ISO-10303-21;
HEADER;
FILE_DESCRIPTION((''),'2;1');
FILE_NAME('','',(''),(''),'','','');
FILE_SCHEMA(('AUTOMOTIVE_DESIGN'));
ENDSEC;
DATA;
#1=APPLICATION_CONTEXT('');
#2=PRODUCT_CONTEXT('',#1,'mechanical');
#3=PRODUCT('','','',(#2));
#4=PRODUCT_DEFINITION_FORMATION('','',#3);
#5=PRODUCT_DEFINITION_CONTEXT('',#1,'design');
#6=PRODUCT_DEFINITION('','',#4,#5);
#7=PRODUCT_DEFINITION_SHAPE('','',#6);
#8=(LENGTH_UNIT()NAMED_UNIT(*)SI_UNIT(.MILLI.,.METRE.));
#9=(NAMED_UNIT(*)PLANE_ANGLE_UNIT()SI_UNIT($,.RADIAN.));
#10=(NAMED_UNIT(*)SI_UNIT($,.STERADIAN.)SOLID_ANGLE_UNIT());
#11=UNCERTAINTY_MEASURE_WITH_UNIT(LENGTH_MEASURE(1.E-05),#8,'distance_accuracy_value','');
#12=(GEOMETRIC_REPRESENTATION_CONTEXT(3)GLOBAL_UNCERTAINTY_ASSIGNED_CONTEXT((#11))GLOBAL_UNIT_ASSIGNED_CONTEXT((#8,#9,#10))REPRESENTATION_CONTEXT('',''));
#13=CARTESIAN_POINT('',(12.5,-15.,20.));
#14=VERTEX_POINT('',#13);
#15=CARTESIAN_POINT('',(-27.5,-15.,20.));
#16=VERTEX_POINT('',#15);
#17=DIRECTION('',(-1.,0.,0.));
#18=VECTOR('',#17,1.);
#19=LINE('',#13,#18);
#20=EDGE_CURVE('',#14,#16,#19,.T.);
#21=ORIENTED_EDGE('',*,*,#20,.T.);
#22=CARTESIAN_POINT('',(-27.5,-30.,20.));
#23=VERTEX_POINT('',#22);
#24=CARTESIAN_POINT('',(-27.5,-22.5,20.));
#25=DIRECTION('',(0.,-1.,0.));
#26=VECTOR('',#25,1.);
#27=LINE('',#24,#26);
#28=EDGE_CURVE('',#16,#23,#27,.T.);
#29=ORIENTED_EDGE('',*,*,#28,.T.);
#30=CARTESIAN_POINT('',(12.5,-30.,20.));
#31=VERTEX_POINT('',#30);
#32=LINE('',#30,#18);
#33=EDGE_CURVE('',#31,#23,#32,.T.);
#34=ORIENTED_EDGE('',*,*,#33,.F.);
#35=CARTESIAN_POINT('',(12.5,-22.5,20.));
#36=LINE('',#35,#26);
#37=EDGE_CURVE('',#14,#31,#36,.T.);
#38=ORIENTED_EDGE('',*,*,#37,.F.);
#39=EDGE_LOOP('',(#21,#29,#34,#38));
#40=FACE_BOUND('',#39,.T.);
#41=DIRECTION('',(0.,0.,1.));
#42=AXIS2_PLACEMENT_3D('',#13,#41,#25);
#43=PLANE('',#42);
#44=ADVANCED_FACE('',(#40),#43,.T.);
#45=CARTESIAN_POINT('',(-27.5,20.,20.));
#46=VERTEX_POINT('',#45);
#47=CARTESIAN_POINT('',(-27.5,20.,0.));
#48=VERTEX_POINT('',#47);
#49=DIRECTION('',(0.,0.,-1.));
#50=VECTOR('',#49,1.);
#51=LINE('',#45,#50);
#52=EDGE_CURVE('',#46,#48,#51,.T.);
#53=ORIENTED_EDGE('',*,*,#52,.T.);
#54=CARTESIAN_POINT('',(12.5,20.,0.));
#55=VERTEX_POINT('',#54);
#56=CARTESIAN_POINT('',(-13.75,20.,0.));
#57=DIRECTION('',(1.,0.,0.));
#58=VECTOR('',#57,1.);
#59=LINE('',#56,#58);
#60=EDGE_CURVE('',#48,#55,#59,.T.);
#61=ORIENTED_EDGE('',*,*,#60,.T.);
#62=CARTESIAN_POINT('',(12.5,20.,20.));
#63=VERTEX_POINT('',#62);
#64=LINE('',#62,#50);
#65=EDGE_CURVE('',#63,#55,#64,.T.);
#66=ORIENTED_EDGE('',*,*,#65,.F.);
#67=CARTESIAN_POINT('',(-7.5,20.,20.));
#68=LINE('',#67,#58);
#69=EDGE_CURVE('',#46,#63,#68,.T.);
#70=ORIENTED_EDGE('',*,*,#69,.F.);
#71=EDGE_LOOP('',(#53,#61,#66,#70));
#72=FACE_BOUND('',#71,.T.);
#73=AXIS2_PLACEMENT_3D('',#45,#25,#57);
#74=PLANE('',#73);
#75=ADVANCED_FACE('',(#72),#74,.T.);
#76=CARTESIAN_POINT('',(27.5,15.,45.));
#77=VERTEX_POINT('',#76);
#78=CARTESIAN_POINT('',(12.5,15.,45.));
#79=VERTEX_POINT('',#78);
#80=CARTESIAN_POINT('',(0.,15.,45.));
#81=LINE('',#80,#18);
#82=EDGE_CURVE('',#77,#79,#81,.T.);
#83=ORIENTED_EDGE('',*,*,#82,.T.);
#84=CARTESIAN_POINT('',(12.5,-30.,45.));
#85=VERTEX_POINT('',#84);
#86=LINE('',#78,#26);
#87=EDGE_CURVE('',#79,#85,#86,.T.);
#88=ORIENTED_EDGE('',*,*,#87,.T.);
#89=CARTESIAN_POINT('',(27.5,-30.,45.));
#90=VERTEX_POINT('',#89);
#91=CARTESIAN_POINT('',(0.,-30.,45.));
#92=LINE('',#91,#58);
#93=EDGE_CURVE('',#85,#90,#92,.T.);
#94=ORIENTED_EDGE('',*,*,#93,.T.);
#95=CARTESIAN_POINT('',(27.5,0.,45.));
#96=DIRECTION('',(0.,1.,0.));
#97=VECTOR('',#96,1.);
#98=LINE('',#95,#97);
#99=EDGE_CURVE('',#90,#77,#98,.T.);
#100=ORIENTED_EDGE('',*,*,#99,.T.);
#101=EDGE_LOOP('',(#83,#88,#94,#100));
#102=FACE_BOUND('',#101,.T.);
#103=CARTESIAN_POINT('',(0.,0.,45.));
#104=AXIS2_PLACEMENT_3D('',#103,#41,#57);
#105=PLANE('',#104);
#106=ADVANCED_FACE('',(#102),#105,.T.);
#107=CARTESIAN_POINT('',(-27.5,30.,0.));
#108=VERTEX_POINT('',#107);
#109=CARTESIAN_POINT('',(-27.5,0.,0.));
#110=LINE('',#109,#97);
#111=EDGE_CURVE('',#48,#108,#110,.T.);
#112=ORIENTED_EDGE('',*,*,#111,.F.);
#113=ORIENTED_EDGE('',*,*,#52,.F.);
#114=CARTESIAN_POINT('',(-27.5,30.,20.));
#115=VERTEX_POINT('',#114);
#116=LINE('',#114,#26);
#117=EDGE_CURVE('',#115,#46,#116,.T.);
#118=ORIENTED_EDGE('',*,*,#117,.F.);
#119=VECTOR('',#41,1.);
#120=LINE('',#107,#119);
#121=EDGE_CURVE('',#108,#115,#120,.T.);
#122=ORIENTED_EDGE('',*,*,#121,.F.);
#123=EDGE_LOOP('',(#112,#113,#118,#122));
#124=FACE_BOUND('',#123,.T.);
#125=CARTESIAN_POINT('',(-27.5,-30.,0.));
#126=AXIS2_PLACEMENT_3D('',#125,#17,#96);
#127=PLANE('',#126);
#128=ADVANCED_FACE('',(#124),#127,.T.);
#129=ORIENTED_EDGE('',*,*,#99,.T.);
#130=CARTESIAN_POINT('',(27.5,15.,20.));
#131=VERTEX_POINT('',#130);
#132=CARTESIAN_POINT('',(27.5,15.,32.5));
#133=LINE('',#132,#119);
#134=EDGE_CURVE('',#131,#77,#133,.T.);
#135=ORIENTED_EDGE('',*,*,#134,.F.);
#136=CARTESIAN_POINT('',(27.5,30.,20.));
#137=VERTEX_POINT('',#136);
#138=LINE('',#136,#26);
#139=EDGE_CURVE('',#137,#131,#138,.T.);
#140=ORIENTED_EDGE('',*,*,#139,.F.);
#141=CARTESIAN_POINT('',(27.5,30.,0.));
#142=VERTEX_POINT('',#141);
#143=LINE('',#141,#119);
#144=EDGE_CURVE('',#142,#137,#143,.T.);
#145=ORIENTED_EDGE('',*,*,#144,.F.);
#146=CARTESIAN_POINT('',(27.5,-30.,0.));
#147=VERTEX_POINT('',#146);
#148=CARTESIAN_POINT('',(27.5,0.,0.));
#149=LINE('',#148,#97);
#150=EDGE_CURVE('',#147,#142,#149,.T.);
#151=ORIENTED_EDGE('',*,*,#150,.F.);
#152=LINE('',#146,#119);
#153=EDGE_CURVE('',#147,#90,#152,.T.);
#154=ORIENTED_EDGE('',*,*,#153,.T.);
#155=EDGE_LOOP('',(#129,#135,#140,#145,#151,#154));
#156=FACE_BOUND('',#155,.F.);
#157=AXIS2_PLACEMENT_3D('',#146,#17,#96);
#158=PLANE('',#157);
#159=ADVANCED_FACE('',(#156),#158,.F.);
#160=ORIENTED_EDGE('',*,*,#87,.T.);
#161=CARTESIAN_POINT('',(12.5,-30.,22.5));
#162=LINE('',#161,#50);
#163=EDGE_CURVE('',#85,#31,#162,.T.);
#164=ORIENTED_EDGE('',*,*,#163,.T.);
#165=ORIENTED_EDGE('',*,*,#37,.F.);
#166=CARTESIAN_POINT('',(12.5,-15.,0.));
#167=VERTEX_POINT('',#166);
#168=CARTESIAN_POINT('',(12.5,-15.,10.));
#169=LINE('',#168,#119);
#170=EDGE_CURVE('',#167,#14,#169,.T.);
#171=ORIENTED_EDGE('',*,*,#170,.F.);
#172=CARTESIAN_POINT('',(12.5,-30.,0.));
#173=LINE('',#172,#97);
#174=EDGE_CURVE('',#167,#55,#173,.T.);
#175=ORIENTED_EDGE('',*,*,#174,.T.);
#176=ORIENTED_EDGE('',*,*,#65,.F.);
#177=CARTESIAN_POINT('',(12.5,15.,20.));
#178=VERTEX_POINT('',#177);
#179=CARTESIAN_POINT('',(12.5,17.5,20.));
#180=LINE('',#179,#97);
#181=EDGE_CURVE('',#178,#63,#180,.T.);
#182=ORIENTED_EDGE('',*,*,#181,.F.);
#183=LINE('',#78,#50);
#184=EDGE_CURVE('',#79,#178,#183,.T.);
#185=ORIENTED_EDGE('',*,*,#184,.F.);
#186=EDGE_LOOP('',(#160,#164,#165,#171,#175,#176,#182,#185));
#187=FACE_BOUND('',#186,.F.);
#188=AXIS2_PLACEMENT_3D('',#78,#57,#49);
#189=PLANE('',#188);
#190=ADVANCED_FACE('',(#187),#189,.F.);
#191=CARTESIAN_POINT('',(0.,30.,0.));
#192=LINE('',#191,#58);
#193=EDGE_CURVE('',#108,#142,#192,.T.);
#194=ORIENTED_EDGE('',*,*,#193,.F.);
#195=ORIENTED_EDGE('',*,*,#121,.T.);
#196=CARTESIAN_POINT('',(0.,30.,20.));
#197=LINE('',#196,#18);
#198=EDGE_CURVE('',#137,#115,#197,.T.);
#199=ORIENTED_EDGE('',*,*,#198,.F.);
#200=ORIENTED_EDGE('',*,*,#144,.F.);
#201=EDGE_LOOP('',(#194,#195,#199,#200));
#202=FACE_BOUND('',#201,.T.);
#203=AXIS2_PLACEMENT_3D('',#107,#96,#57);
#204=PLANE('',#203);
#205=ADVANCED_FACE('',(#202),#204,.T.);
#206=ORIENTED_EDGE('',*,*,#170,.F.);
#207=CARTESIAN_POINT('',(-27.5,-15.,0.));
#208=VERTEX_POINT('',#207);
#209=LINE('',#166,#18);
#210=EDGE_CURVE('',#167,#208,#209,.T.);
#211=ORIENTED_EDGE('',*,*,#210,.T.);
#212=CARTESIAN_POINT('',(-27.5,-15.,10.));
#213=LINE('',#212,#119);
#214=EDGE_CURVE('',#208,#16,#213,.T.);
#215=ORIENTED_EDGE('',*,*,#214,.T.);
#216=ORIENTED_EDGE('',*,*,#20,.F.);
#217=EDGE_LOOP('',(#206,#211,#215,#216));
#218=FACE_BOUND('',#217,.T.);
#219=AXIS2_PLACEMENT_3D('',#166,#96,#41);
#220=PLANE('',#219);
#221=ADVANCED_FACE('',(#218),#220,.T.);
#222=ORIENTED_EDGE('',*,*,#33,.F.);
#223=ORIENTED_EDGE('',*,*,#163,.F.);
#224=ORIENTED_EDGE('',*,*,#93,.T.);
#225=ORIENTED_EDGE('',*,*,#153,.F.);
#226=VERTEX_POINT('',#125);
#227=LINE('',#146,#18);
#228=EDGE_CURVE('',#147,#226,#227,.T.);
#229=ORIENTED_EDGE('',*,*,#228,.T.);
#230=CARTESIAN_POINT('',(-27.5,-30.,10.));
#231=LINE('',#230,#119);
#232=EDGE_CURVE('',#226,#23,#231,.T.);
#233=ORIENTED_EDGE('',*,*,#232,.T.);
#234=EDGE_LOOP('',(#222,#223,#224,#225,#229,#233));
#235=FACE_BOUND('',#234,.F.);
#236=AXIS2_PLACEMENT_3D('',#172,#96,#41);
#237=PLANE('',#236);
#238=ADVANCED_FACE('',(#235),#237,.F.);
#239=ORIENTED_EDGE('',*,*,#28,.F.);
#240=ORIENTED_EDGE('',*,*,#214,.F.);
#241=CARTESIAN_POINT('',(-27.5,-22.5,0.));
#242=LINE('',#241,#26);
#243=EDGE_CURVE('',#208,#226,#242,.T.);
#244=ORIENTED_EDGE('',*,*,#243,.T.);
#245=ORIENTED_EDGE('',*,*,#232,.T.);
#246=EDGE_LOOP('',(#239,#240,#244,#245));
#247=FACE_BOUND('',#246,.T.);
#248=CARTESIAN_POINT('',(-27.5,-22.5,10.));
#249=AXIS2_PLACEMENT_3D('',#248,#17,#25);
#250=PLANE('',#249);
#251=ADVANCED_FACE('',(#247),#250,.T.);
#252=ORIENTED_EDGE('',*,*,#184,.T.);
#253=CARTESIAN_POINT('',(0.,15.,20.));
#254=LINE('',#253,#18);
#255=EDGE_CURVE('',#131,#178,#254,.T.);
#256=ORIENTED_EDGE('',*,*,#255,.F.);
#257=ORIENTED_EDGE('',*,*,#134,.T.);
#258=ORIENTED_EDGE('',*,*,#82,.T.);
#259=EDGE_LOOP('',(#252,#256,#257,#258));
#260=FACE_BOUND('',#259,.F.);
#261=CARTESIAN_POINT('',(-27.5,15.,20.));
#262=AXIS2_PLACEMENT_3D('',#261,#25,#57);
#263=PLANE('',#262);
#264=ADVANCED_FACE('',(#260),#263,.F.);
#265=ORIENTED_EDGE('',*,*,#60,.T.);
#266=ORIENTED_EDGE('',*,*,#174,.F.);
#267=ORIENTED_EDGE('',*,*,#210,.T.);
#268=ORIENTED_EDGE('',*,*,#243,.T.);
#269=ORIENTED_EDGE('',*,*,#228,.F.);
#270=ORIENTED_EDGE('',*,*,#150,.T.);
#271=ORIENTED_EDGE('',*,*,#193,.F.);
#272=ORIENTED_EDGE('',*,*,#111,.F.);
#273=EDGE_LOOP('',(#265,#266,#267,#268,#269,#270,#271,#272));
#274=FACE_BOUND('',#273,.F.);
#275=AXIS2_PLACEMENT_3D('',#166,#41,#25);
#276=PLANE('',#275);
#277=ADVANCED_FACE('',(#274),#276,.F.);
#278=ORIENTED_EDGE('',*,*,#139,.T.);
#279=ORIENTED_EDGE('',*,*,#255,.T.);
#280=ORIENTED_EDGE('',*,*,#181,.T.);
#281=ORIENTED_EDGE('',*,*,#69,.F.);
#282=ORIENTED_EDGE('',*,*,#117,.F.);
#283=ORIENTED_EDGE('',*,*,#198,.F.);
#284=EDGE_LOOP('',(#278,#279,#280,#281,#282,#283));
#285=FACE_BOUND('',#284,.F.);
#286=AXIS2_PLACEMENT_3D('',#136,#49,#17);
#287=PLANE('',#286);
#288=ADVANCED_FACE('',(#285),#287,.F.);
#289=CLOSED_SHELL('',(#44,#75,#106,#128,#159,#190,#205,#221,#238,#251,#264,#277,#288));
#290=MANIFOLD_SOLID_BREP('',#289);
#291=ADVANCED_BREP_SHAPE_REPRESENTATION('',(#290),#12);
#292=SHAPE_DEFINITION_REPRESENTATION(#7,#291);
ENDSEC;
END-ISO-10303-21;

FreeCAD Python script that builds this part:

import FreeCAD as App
import Part
import Sketcher


def add_polygon(sketch, points):
    """Adds a closed chain of lines whose ends are joined by coincident constraints."""
    first, n = sketch.GeometryCount, len(points)
    for a, b in zip(points, points[1:] + points[:1]):
        sketch.addGeometry(Part.LineSegment(App.Vector(*a, 0), App.Vector(*b, 0)), False)
    for i in range(n):
        sketch.addConstraint(Sketcher.Constraint("Coincident", first + i, 2, first + (i + 1) % n, 1))

doc = App.newDocument("Part")
params = doc.addObject("Spreadsheet::Sheet", "Params")
for row, (alias, value) in enumerate([
    ("sketch1_width", "55 mm"),
    ("sketch1_height", "60 mm"),
    ("pad1_length", "45 mm"),
    ("sketch2_width", "55 mm"),
    ("sketch2_height", "25 mm"),
    ("pocket1_length", "15 mm"),
    ("sketch3_width", "40 mm"),
    ("sketch3_height", "5 mm"),
    ("sketch4_width", "40 mm"),
    ("sketch4_height", "45 mm"),
    ("sketch5_width", "15 mm"),
    ("sketch5_height", "20 mm"),
    ("pad2_length", "40 mm"),
], start=1):
    params.set(f"A{row}", alias)
    params.set(f"B{row}", "=" + value)
    params.setAlias(f"B{row}", alias)

body = doc.addObject("PartDesign::Body", "Body")

sketch1 = body.newObject("Sketcher::SketchObject", "Sketch")
sketch1.AttachmentSupport = (doc.getObject("XY_Plane"), [""])
sketch1.MapMode = "FlatFace"
add_polygon(sketch1, [(-28, 30), (-28, -30), (28, -30), (28, 30)])
sketch1.addConstraint([
    Sketcher.Constraint("Vertical", 0),
    Sketcher.Constraint("Horizontal", 1),
    Sketcher.Constraint("Vertical", 2),
    Sketcher.Constraint("Horizontal", 3),
    Sketcher.Constraint("Symmetric", 0, 2, 2, 2, -1, 1),
    Sketcher.Constraint("DistanceX", 1, 1, 1, 2, 55.0),
    Sketcher.Constraint("DistanceY", 0, 2, 0, 1, 60.0),
])
sketch1.setExpression("Constraints[9]", "Params.sketch1_width")
sketch1.setExpression("Constraints[10]", "Params.sketch1_height")
pad1 = body.newObject("PartDesign::Pad", "Pad")
pad1.Profile = sketch1
pad1.setExpression("Length", "Params.pad1_length")

sketch2 = body.newObject("Sketcher::SketchObject", "Sketch001")
sketch2.AttachmentSupport = (doc.getObject("XZ_Plane"), [""])
sketch2.MapMode = "FlatFace"
sketch2.AttachmentOffset = App.Placement(App.Vector(0, 0, -30), App.Rotation())
add_polygon(sketch2, [(28, 45), (28, 20), (-28, 20), (-28, 45)])
sketch2.addConstraint([
    Sketcher.Constraint("Vertical", 0),
    Sketcher.Constraint("Horizontal", 1),
    Sketcher.Constraint("Vertical", 2),
    Sketcher.Constraint("Horizontal", 3),
    Sketcher.Constraint("DistanceX", 1, 2, 1, 1, 55.0),
    Sketcher.Constraint("DistanceY", 0, 2, 0, 1, 25.0),
    Sketcher.Constraint("DistanceY", -1, 1, 0, 2, 20.0),
    Sketcher.Constraint("DistanceX", -1, 1, 0, 2, 27.5),
])
sketch2.setExpression("Constraints[8]", "Params.sketch2_width")
sketch2.setExpression("Constraints[9]", "Params.sketch2_height")
pocket1 = body.newObject("PartDesign::Pocket", "Pocket")
pocket1.Profile = sketch2
pocket1.setExpression("Length", "Params.pocket1_length")
pocket1.Reversed = True

sketch3 = body.newObject("Sketcher::SketchObject", "Sketch002")
sketch3.AttachmentSupport = (doc.getObject("XY_Plane"), [""])
sketch3.MapMode = "FlatFace"
sketch3.AttachmentOffset = App.Placement(App.Vector(0, 0, 20), App.Rotation())
add_polygon(sketch3, [(-28, 20), (-28, 15), (12, 15), (12, 20)])
sketch3.addConstraint([
    Sketcher.Constraint("Vertical", 0),
    Sketcher.Constraint("Horizontal", 1),
    Sketcher.Constraint("Vertical", 2),
    Sketcher.Constraint("Horizontal", 3),
    Sketcher.Constraint("DistanceX", 1, 1, 1, 2, 40.0),
    Sketcher.Constraint("DistanceY", 0, 2, 0, 1, 5.0),
    Sketcher.Constraint("DistanceY", -1, 1, 0, 2, 15.0),
    Sketcher.Constraint("DistanceX", 0, 2, -1, 1, 27.5),
])
sketch3.setExpression("Constraints[8]", "Params.sketch3_width")
sketch3.setExpression("Constraints[9]", "Params.sketch3_height")
pocket2 = body.newObject("PartDesign::Pocket", "Pocket001")
pocket2.Profile = sketch3
pocket2.Type = "ThroughAll"

sketch4 = body.newObject("Sketcher::SketchObject", "Sketch003")
sketch4.AttachmentSupport = (doc.getObject("XZ_Plane"), [""])
sketch4.MapMode = "FlatFace"
sketch4.AttachmentOffset = App.Placement(App.Vector(0, 0, -15), App.Rotation())
add_polygon(sketch4, [(12, 45), (12, 0), (-28, 0), (-28, 45)])
sketch4.addConstraint([
    Sketcher.Constraint("Vertical", 0),
    Sketcher.Constraint("Horizontal", 1),
    Sketcher.Constraint("Vertical", 2),
    Sketcher.Constraint("Horizontal", 3),
    Sketcher.Constraint("PointOnObject", 0, 2, -1),
    Sketcher.Constraint("DistanceX", 1, 2, 1, 1, 40.0),
    Sketcher.Constraint("DistanceY", 0, 2, 0, 1, 45.0),
    Sketcher.Constraint("DistanceX", -1, 1, 0, 2, 12.5),
])
sketch4.setExpression("Constraints[9]", "Params.sketch4_width")
sketch4.setExpression("Constraints[10]", "Params.sketch4_height")
pocket3 = body.newObject("PartDesign::Pocket", "Pocket002")
pocket3.Profile = sketch4
pocket3.Type = "ThroughAll"
pocket3.Reversed = True

sketch5 = body.newObject("Sketcher::SketchObject", "Sketch004")
sketch5.AttachmentSupport = (doc.getObject("YZ_Plane"), [""])
sketch5.MapMode = "FlatFace"
sketch5.AttachmentOffset = App.Placement(App.Vector(0, 0, 12.5), App.Rotation())
add_polygon(sketch5, [(-15, 20), (-15, 0), (-30, 0), (-30, 20)])
sketch5.addConstraint([
    Sketcher.Constraint("Vertical", 0),
    Sketcher.Constraint("Horizontal", 1),
    Sketcher.Constraint("Vertical", 2),
    Sketcher.Constraint("Horizontal", 3),
    Sketcher.Constraint("PointOnObject", 0, 2, -1),
    Sketcher.Constraint("DistanceX", 1, 2, 1, 1, 15.0),
    Sketcher.Constraint("DistanceY", 0, 2, 0, 1, 20.0),
    Sketcher.Constraint("DistanceX", 0, 2, -1, 1, 15.0),
])
sketch5.setExpression("Constraints[9]", "Params.sketch5_width")
sketch5.setExpression("Constraints[10]", "Params.sketch5_height")
pad2 = body.newObject("PartDesign::Pad", "Pad001")
pad2.Profile = sketch5
pad2.setExpression("Length", "Params.pad2_length")
pad2.Reversed = True

doc.recompute()
